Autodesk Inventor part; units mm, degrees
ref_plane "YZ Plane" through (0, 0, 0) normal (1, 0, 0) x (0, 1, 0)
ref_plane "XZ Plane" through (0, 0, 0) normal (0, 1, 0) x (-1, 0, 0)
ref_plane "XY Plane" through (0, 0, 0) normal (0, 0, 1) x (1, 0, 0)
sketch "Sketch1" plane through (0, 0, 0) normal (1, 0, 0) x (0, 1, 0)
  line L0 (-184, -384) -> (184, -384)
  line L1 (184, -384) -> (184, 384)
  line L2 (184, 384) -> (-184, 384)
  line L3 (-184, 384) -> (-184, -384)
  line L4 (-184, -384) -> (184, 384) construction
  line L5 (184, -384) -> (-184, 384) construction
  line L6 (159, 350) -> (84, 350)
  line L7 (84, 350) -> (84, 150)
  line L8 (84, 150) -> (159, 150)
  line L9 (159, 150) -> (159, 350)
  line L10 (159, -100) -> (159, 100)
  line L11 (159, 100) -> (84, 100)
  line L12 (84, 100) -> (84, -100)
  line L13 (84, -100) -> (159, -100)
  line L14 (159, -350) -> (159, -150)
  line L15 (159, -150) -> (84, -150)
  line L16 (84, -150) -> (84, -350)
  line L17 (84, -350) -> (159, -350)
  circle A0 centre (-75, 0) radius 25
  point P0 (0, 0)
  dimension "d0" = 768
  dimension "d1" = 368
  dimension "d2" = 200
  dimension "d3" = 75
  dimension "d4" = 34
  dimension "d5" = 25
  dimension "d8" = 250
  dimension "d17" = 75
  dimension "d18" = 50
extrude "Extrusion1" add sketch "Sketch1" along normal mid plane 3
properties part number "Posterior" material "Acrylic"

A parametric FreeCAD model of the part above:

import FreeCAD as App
import Part
import Sketcher
Q = App.Units.Quantity

doc = App.newDocument("Part")
body = doc.addObject("PartDesign::Body", "Body")

sketch1 = body.newObject("Sketcher::SketchObject", "Sketch")
sketch1.AttachmentSupport = (doc.getObject("YZ_Plane"), [""])
sketch1.MapMode = "FlatFace"
sketch1.addGeometry([
    Part.LineSegment(App.Vector(-184, 384, 0), App.Vector(-184, -384, 0)),
    Part.LineSegment(App.Vector(-184, -384, 0), App.Vector(184, -384, 0)),
    Part.LineSegment(App.Vector(184, -384, 0), App.Vector(184, 384, 0)),
    Part.LineSegment(App.Vector(184, 384, 0), App.Vector(-184, 384, 0)),
    Part.LineSegment(App.Vector(159, -150, 0), App.Vector(159, -350, 0)),
    Part.LineSegment(App.Vector(159, -350, 0), App.Vector(84, -350, 0)),
    Part.LineSegment(App.Vector(84, -350, 0), App.Vector(84, -150, 0)),
    Part.LineSegment(App.Vector(84, -150, 0), App.Vector(159, -150, 0)),
    Part.Circle(App.Vector(-75, 0, 0), App.Vector(0, 0, 1), 25),
    Part.LineSegment(App.Vector(159, 100, 0), App.Vector(159, -100, 0)),
    Part.LineSegment(App.Vector(159, -100, 0), App.Vector(84, -100, 0)),
    Part.LineSegment(App.Vector(84, -100, 0), App.Vector(84, 100, 0)),
    Part.LineSegment(App.Vector(84, 100, 0), App.Vector(159, 100, 0)),
    Part.LineSegment(App.Vector(84, 350, 0), App.Vector(159, 350, 0)),
    Part.LineSegment(App.Vector(159, 350, 0), App.Vector(159, 150, 0)),
    Part.LineSegment(App.Vector(159, 150, 0), App.Vector(84, 150, 0)),
    Part.LineSegment(App.Vector(84, 150, 0), App.Vector(84, 350, 0)),
], False)
sketch1.addConstraint([
    Sketcher.Constraint("Coincident", 0, 2, 1, 1),
    Sketcher.Constraint("Coincident", 1, 2, 2, 1),
    Sketcher.Constraint("Coincident", 2, 2, 3, 1),
    Sketcher.Constraint("Coincident", 3, 2, 0, 1),
    Sketcher.Constraint("Coincident", 4, 2, 5, 1),
    Sketcher.Constraint("Coincident", 5, 2, 6, 1),
    Sketcher.Constraint("Coincident", 6, 2, 7, 1),
    Sketcher.Constraint("Coincident", 7, 2, 4, 1),
    Sketcher.Constraint("Coincident", 9, 2, 10, 1),
    Sketcher.Constraint("Coincident", 10, 2, 11, 1),
    Sketcher.Constraint("Coincident", 11, 2, 12, 1),
    Sketcher.Constraint("Coincident", 12, 2, 9, 1),
    Sketcher.Constraint("Coincident", 13, 2, 14, 1),
    Sketcher.Constraint("Coincident", 14, 2, 15, 1),
    Sketcher.Constraint("Coincident", 15, 2, 16, 1),
    Sketcher.Constraint("Coincident", 16, 2, 13, 1),
    Sketcher.Constraint("Vertical", 0),
    Sketcher.Constraint("Horizontal", 1),
    Sketcher.Constraint("Vertical", 2),
    Sketcher.Constraint("Horizontal", 3),
    Sketcher.Constraint("Vertical", 4),
    Sketcher.Constraint("Horizontal", 5),
    Sketcher.Constraint("Vertical", 6),
    Sketcher.Constraint("Horizontal", 7),
    Sketcher.Constraint("Vertical", 9),
    Sketcher.Constraint("Horizontal", 10),
    Sketcher.Constraint("Vertical", 11),
    Sketcher.Constraint("Horizontal", 12),
    Sketcher.Constraint("Horizontal", 13),
    Sketcher.Constraint("Vertical", 14),
    Sketcher.Constraint("Horizontal", 15),
    Sketcher.Constraint("Vertical", 16),
    Sketcher.Constraint("Symmetric", 0, 2, 2, 2, -1, 1),
    Sketcher.Constraint("Symmetric", 4, 2, 13, 2, -1),
    Sketcher.Constraint("Symmetric", 6, 2, 15, 2, -1),
    Sketcher.Constraint("PointOnObject", 8, 3, -1),
    Sketcher.Constraint("Vertical", 7, 2, 9, 2),
    Sketcher.Constraint("Vertical", 6, 2, 10, 2),
    Sketcher.Constraint("Equal", 6, 9),
    Sketcher.Constraint("Diameter", 8, Q("50 mm")),
    Sketcher.Constraint("DistanceX", 1, 1, 1, 2, Q("368 mm")),
    Sketcher.Constraint("DistanceX", 5, 2, 5, 1, Q("75 mm")),
    Sketcher.Constraint("DistanceY", 0, 2, 0, 1, Q("768 mm")),
    Sketcher.Constraint("DistanceY", 4, 2, 4, 1, Q("200 mm")),
    Sketcher.Constraint("DistanceX", 8, 3, -1, 1, Q("75 mm")),
    Sketcher.Constraint("DistanceX", 4, 2, 1, 2, Q("25 mm")),
    Sketcher.Constraint("DistanceY", 1, 2, 4, 2, Q("34 mm")),
    Sketcher.Constraint("DistanceY", 7, 2, 9, 2, Q("50 mm")),
])
pad1 = body.newObject("PartDesign::Pad", "Pad")
pad1.Profile = sketch1
pad1.Length = 3
pad1.Midplane = True

doc.recompute()
